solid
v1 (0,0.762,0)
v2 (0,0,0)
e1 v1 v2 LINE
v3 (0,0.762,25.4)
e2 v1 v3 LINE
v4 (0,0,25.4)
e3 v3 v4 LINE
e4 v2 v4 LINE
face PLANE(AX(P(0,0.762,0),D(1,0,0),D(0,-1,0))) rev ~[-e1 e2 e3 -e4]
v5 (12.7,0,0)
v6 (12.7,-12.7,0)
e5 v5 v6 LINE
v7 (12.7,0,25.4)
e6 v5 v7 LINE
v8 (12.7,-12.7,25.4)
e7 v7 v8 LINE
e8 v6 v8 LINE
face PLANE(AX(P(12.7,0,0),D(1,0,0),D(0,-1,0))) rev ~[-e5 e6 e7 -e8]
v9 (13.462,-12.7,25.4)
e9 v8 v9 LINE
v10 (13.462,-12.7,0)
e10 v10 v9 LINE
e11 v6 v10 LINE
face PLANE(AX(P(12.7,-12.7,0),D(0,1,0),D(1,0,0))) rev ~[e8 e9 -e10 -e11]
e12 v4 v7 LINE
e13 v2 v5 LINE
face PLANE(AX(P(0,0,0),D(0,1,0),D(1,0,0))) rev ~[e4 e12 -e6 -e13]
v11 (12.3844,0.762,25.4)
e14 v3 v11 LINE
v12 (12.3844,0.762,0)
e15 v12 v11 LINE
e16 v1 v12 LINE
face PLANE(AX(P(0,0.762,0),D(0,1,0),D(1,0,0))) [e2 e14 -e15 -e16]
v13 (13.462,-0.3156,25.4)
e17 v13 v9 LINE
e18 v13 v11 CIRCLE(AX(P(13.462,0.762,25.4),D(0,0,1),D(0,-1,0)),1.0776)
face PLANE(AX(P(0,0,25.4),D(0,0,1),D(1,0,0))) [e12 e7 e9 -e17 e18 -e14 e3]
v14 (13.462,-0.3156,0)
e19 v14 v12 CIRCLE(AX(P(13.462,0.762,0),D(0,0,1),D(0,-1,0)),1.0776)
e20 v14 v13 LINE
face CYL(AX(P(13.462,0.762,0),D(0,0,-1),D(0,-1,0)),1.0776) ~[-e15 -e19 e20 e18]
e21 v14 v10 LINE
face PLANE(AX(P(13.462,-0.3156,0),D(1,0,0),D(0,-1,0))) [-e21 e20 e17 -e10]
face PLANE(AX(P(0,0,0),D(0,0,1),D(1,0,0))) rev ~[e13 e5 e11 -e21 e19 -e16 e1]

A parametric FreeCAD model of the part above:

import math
import FreeCAD as App
import Part
import Sketcher

V = App.Vector
Q = App.Units.Quantity

doc = App.newDocument("Part")
params = doc.addObject("Spreadsheet::Sheet", "Params")
for row, (alias, value) in enumerate([
    ("sketch1_width", "0.5 in"),
    ("sketch1_width2", "0.03 in"),
    ("pad1_length", "1 in"),
], start=1):
    params.set(f"A{row}", alias)
    params.set(f"B{row}", "=" + value)
    params.setAlias(f"B{row}", alias)

body = doc.addObject("PartDesign::Body", "Body")

# Sketch on XY plane
sketch1 = body.newObject("Sketcher::SketchObject", "Sketch")
sketch1.AttachmentSupport = (doc.getObject("XY_Plane"), [""])
sketch1.MapMode = "FlatFace"
sketch1.addGeometry([
    Part.LineSegment(V(0, 0.8, 0), V(0, 0, 0)),  # 0
    Part.LineSegment(V(0, 0, 0), V(12.7, 0, 0)),  # 1
    Part.LineSegment(V(12.7, 0, 0), V(12.7, -12.7, 0)),  # 2
    Part.LineSegment(V(12.7, -12.7, 0), V(13.5, -12.7, 0)),  # 3
    Part.LineSegment(V(13.5, -12.7, 0), V(13.5, -0.3, 0)),  # 4
    Part.ArcOfCircle(Part.Circle(V(13.5, 0.8, 0), V(0, 0, 1), 1.1), math.radians(-90), math.radians(180)),  # 5
    Part.LineSegment(V(12.4, 0.8, 0), V(0, 0.8, 0)),  # 6
], False)
sketch1.addConstraint([
    Sketcher.Constraint("Coincident", 0, 2, 1, 1),
    Sketcher.Constraint("Coincident", 1, 2, 2, 1),
    Sketcher.Constraint("Coincident", 2, 2, 3, 1),
    Sketcher.Constraint("Coincident", 3, 2, 4, 1),
    Sketcher.Constraint("Coincident", 4, 2, 5, 1),
    Sketcher.Constraint("Coincident", 5, 2, 6, 1),
    Sketcher.Constraint("Coincident", 6, 2, 0, 1),
    Sketcher.Constraint("Vertical", 0),
    Sketcher.Constraint("Horizontal", 1),
    Sketcher.Constraint("Vertical", 2),
    Sketcher.Constraint("Horizontal", 3),
    Sketcher.Constraint("Vertical", 4),
    Sketcher.Constraint("Horizontal", 6),
    Sketcher.Constraint("Coincident", 0, 2, -1, 1),
    Sketcher.Constraint("Vertical", 5, 3, 3, 2),
    Sketcher.Constraint("Equal", 3, 0),
    Sketcher.Constraint("Equal", 1, 2),
    Sketcher.Constraint("Equal", 6, 4),
    Sketcher.Constraint("DistanceX", 1, 1, 1, 2, Q("0.5 in")),
    Sketcher.Constraint("DistanceX", 3, 1, 3, 2, Q("0.03 in")),
    Sketcher.Constraint("Radius", 5, Q("1.0776 mm")),
])
sketch1.setExpression("Constraints[18]", "Params.sketch1_width")
sketch1.setExpression("Constraints[19]", "Params.sketch1_width2")
pad1 = body.newObject("PartDesign::Pad", "Pad")
pad1.Profile = sketch1
pad1.setExpression("Length", "Params.pad1_length")

doc.recompute()
